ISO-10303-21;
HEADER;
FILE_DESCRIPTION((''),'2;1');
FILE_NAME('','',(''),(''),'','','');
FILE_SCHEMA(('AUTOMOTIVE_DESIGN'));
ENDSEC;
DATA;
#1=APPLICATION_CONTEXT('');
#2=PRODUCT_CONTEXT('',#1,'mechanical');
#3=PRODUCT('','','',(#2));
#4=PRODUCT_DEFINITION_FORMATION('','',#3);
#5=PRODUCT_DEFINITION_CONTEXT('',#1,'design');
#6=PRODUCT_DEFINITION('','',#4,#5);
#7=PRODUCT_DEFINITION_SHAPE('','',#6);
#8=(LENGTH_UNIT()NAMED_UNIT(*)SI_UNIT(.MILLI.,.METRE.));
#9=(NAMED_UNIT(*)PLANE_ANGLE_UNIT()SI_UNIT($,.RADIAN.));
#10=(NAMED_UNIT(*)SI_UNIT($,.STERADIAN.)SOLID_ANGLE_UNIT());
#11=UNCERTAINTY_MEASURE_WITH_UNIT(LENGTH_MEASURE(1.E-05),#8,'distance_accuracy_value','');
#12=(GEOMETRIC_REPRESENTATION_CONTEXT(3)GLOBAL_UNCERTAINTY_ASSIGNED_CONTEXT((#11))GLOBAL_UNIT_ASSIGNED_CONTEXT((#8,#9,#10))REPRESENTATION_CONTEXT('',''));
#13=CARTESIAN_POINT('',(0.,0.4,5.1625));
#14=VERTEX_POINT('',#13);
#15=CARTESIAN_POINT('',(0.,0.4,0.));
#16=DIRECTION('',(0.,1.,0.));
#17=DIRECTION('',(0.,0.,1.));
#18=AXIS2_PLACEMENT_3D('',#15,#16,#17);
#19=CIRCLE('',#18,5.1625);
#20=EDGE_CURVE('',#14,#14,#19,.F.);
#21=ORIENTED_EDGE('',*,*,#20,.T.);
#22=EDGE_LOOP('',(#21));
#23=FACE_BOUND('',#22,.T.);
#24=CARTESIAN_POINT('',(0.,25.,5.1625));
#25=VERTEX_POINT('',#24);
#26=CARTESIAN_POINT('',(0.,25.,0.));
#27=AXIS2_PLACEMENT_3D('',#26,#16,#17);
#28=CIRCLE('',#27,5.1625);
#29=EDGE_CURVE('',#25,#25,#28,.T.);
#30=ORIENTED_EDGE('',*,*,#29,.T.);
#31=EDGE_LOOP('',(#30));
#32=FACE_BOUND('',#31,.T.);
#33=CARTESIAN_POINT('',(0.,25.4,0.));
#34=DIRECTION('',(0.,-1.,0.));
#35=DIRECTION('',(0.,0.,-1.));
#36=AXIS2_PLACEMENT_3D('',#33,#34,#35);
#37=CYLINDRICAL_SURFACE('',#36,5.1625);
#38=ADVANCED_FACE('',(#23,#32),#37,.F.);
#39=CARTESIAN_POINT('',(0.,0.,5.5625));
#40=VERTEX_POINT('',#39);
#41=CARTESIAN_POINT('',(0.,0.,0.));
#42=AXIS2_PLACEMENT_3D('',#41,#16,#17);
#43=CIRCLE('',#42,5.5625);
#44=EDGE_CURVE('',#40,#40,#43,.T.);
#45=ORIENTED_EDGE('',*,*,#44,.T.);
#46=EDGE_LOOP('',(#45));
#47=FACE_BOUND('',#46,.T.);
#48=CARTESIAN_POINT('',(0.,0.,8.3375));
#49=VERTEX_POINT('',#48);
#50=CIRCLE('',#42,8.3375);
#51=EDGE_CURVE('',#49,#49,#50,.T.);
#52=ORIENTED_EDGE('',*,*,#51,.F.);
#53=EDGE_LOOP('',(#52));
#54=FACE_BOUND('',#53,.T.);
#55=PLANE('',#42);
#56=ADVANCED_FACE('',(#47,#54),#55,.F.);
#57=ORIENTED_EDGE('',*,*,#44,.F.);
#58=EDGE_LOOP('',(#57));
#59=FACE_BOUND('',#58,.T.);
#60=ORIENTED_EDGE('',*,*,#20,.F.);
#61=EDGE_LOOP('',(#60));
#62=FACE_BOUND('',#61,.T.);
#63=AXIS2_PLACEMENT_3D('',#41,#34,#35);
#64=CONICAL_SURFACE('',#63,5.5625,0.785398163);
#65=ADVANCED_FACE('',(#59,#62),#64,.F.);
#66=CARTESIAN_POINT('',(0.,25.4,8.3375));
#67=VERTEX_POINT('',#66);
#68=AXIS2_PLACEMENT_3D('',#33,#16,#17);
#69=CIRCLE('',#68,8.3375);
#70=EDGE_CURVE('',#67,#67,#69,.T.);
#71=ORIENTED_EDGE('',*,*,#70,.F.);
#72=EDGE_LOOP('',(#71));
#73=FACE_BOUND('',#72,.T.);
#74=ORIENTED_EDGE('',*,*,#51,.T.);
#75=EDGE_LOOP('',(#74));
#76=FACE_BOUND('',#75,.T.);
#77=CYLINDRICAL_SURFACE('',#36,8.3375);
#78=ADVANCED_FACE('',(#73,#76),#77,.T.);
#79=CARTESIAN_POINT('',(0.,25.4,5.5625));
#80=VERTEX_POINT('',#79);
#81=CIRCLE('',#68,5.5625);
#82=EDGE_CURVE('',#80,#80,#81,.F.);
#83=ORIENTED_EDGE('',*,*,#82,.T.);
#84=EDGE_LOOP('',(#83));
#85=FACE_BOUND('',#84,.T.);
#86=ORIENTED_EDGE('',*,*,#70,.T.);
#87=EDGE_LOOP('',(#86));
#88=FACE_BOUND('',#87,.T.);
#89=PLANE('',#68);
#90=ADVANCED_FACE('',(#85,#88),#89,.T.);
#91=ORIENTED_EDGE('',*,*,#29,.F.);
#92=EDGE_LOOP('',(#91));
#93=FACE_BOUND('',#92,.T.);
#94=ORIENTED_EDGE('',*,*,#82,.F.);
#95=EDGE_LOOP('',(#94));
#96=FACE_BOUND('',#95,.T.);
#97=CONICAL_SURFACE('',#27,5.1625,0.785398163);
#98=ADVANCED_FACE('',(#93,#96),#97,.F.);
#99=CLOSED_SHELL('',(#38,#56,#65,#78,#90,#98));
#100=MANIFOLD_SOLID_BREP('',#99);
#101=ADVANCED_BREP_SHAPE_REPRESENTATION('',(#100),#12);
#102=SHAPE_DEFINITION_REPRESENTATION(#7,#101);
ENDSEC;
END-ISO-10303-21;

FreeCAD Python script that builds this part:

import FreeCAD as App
import Part
import Sketcher
from FreeCAD import Vector


def edges_at(feature, points):
    """Names of the edges that pass closest to the given points."""
    edges = feature.Shape.Edges
    near = lambda p: min(range(len(edges)), key=lambda i: edges[i].distToShape(Part.Vertex(*p))[0])
    return sorted({f"Edge{near(p) + 1}" for p in points})

doc = App.newDocument("Part")
body = doc.addObject("PartDesign::Body", "Body")

sketch1 = body.newObject("Sketcher::SketchObject", "Sketch")
sketch1.AttachmentSupport = (doc.getObject("XZ_Plane"), [""])
sketch1.MapMode = "FlatFace"
sketch1.addGeometry([
    Part.Circle(Vector(0, 0, 0), Vector(0, 0, 1), 8),
    Part.Circle(Vector(0, 0, 0), Vector(0, 0, 1), 5),
], False)
sketch1.addConstraint([
    Sketcher.Constraint("Coincident", 0, 3, -1, 1),
    Sketcher.Constraint("Coincident", 1, 3, -1, 1),
    Sketcher.Constraint("Diameter", 0, 16.675),
    Sketcher.Constraint("Diameter", 1, 10.325),
])
pad1 = body.newObject("PartDesign::Pad", "Pad")
pad1.Profile = sketch1
pad1.Length = 25.4
pad1.Reversed = True
doc.recompute()

chamfer = body.newObject("PartDesign::Chamfer", "Chamfer")
chamfer.Base = (pad1, edges_at(pad1, [(0, 0, -5.162), (0, 25.4, -5.162)]))
chamfer.Size = 0.4

doc.recompute()
